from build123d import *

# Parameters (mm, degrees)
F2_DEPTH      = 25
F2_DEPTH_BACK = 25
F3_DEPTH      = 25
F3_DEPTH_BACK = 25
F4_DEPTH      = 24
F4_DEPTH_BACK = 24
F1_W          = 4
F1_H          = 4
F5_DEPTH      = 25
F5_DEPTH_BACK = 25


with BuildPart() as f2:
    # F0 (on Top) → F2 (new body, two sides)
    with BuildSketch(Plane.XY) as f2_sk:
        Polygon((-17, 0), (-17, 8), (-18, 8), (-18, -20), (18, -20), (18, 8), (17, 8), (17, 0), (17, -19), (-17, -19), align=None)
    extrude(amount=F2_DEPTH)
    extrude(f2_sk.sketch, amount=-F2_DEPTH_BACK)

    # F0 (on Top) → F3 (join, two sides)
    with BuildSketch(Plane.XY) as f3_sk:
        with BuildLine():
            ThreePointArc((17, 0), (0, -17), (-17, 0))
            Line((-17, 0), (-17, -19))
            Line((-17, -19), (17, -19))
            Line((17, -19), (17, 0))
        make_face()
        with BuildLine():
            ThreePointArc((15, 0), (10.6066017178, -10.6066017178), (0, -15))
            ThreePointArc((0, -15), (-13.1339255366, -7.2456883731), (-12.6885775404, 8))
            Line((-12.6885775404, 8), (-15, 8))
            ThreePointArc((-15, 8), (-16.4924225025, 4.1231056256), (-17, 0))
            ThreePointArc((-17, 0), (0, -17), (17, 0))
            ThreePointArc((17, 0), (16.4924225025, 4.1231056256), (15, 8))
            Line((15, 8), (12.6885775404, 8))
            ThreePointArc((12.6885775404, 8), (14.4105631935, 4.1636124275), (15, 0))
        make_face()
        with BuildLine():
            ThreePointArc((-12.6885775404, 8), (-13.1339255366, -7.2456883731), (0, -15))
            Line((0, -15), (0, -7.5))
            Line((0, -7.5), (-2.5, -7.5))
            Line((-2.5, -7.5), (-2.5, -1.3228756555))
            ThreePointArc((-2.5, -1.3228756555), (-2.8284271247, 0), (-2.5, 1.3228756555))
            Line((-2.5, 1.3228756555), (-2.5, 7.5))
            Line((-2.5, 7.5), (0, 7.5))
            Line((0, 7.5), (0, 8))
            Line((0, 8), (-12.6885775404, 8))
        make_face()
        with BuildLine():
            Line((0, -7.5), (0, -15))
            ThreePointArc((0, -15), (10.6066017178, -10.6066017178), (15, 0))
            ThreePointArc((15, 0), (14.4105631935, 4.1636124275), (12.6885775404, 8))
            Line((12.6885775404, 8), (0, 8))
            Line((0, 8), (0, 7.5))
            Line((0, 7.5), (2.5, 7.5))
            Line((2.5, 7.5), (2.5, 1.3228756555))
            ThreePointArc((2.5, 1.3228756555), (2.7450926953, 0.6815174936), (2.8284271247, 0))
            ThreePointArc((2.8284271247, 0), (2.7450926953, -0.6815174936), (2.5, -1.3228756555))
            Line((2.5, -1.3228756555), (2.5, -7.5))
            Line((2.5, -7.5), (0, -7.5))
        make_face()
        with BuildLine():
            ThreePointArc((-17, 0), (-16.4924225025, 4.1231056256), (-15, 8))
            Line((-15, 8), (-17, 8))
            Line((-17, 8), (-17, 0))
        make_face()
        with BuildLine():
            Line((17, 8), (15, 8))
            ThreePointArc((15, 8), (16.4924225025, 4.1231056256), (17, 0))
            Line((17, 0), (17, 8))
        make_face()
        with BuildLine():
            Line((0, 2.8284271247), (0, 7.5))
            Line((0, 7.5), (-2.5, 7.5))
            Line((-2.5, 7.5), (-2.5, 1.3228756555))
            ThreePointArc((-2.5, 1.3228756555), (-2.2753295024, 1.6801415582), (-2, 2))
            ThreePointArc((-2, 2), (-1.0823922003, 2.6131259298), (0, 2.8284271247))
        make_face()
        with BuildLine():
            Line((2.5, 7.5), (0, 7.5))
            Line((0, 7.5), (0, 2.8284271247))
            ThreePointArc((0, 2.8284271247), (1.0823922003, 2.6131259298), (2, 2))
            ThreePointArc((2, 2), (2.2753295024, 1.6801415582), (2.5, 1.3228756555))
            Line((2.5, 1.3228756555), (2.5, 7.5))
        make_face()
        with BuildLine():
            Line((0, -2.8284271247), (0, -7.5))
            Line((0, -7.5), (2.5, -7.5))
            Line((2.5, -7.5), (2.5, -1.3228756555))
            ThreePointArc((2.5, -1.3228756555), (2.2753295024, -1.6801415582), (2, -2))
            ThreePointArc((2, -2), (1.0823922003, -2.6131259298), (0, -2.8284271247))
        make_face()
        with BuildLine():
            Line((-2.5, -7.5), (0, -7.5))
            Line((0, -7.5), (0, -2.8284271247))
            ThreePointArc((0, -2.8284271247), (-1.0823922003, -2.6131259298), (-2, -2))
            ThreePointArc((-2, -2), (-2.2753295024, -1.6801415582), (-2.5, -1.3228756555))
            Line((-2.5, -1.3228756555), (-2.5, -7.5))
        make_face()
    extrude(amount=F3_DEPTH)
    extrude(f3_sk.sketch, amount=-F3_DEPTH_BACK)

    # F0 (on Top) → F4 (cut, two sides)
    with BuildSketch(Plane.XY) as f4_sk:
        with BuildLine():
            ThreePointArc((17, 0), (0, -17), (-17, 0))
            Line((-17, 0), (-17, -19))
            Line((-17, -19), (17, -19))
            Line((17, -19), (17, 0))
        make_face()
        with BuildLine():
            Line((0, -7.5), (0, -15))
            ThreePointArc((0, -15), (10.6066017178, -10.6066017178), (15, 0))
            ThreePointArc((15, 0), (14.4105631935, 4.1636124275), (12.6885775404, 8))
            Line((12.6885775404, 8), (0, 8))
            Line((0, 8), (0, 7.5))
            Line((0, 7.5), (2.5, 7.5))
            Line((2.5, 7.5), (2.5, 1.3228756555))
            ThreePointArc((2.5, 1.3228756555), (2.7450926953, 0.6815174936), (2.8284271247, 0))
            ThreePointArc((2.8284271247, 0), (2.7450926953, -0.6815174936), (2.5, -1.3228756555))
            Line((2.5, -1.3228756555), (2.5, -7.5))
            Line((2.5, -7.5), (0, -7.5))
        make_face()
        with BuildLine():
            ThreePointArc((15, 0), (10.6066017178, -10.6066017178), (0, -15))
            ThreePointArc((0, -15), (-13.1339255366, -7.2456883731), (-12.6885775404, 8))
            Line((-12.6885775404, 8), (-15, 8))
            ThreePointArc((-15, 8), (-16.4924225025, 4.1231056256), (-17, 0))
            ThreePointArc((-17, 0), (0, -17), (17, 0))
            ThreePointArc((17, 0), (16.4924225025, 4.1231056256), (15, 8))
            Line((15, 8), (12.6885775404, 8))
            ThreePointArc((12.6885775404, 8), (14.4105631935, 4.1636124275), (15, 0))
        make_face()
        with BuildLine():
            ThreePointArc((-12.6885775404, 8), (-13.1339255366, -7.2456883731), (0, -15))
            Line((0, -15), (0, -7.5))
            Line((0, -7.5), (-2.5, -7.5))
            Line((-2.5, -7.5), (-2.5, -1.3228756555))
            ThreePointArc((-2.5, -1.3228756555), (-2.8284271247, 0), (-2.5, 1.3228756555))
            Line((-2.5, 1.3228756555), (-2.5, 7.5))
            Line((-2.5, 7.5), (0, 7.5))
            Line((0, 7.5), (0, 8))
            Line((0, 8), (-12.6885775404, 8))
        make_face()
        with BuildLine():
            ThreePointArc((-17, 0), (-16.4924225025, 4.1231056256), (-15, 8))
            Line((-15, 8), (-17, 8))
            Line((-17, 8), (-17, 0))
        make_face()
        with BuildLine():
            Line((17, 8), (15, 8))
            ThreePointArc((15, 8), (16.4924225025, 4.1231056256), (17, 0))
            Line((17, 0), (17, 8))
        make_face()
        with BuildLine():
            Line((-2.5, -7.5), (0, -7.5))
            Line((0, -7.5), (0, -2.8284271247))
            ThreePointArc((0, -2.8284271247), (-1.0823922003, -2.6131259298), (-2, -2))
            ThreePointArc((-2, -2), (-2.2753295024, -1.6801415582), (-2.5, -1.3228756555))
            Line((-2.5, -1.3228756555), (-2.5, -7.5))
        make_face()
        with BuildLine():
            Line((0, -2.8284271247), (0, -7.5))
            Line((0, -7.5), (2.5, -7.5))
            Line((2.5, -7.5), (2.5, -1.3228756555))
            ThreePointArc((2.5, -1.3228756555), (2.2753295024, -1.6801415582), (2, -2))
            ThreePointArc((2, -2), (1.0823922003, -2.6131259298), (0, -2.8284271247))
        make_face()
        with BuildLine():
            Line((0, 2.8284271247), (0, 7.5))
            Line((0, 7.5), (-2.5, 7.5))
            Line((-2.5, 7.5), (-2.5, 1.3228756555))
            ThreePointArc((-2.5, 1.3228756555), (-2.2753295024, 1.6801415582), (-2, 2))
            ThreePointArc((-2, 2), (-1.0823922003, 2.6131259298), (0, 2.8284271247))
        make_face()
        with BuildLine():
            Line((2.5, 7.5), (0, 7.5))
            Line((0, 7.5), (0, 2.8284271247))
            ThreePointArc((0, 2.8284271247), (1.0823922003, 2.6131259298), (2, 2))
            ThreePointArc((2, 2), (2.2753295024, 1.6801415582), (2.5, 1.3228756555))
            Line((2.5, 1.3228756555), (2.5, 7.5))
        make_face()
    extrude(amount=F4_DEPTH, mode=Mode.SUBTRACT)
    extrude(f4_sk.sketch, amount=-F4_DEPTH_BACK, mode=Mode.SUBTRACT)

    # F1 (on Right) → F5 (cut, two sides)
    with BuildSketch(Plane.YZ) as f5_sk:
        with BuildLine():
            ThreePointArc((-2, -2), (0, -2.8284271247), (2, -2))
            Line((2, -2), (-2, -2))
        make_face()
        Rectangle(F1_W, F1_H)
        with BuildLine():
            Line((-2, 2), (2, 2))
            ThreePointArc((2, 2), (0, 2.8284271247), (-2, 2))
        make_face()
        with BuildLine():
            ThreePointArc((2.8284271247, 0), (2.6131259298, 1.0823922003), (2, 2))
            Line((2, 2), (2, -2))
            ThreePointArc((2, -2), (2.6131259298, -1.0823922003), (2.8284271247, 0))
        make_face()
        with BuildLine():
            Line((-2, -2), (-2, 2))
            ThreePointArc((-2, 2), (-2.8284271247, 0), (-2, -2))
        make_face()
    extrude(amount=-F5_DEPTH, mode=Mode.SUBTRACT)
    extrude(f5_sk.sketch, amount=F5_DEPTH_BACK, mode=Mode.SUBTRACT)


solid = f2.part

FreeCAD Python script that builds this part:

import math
import FreeCAD as App
import Part
import Sketcher

V = App.Vector


def add_polygon(sketch, points):
    """Adds a closed chain of lines whose ends are joined by coincident constraints."""
    first, n = sketch.GeometryCount, len(points)
    for a, b in zip(points, points[1:] + points[:1]):
        sketch.addGeometry(Part.LineSegment(App.Vector(*a, 0), App.Vector(*b, 0)), False)
    for i in range(n):
        sketch.addConstraint(Sketcher.Constraint("Coincident", first + i, 2, first + (i + 1) % n, 1))

doc = App.newDocument("Part")
body = doc.addObject("PartDesign::Body", "Body")

sketch1 = body.newObject("Sketcher::SketchObject", "Sketch")
sketch1.AttachmentSupport = (doc.getObject("XY_Plane"), [""])
sketch1.MapMode = "FlatFace"
add_polygon(sketch1, [(-17, 8), (-18, 8), (-18, -20), (18, -20), (18, 8), (17, 8), (17, -19), (-17, -19)])
sketch1.addConstraint(Sketcher.Constraint("Horizontal", 0))
sketch1.addConstraint(Sketcher.Constraint("Vertical", 1))
sketch1.addConstraint(Sketcher.Constraint("Horizontal", 2))
sketch1.addConstraint(Sketcher.Constraint("Vertical", 3))
sketch1.addConstraint(Sketcher.Constraint("Horizontal", 4))
sketch1.addConstraint(Sketcher.Constraint("Vertical", 5))
sketch1.addConstraint(Sketcher.Constraint("Horizontal", 6))
sketch1.addConstraint(Sketcher.Constraint("Vertical", 7))
sketch1.addConstraint(Sketcher.Constraint("Symmetric", 0, 2, 3, 2, -2))
sketch1.addConstraint(Sketcher.Constraint("Equal", 0, 4))
sketch1.addConstraint(Sketcher.Constraint("DistanceX", 0, 2, 0, 1, 1.0))
sketch1.addConstraint(Sketcher.Constraint("DistanceX", 2, 1, 2, 2, 36.0))
sketch1.addConstraint(Sketcher.Constraint("DistanceY", 1, 2, 1, 1, 28.0))
sketch1.addConstraint(Sketcher.Constraint("DistanceY", 5, 2, 5, 1, 27.0))
sketch1.addConstraint(Sketcher.Constraint("DistanceY", -1, 1, 0, 2, 8.0))
pad1 = body.newObject("PartDesign::Pad", "Pad")
pad1.Profile = sketch1
pad1.Type = "TwoLengths"
pad1.Length = 25
pad1.Length2 = 25

sketch2 = body.newObject("Sketcher::SketchObject", "Sketch001")
sketch2.AttachmentSupport = (doc.getObject("XY_Plane"), [""])
sketch2.MapMode = "FlatFace"
add_polygon(sketch2, [(-17, -19), (17, -19), (17, 8), (-17, 8)])
sketch2.addGeometry(Part.ArcOfCircle(Part.Circle(V(0, 0, 0), V(0, 0, 1), 2.8), math.radians(152), math.radians(208)), False)
sketch2.addGeometry(Part.ArcOfCircle(Part.Circle(V(0, 0, 0), V(0, 0, 1), 2.8), math.radians(135), math.radians(152.11)), False)
sketch2.addGeometry(Part.ArcOfCircle(Part.Circle(V(0, 0, 0), V(0, 0, 1), 2.8), math.radians(90), math.radians(135)), False)
sketch2.addGeometry(Part.ArcOfCircle(Part.Circle(V(0, 0, 0), V(0, 0, 1), 2.8), math.radians(45), math.radians(90)), False)
sketch2.addGeometry(Part.ArcOfCircle(Part.Circle(V(0, 0, 0), V(0, 0, 1), 2.8), math.radians(27.89), math.radians(45)), False)
sketch2.addGeometry(Part.ArcOfCircle(Part.Circle(V(0, 0, 0), V(0, 0, 1), 2.8), math.radians(0), math.radians(28)), False)
sketch2.addGeometry(Part.ArcOfCircle(Part.Circle(V(0, 0, 0), V(0, 0, 1), 2.8), math.radians(-28), math.radians(0)), False)
sketch2.addGeometry(Part.ArcOfCircle(Part.Circle(V(0, 0, 0), V(0, 0, 1), 2.8), math.radians(-45), math.radians(-27.89)), False)
sketch2.addGeometry(Part.ArcOfCircle(Part.Circle(V(0, 0, 0), V(0, 0, 1), 2.8), math.radians(-90), math.radians(-45)), False)
sketch2.addGeometry(Part.ArcOfCircle(Part.Circle(V(0, 0, 0), V(0, 0, 1), 2.8), math.radians(-135), math.radians(-90)), False)
sketch2.addGeometry(Part.ArcOfCircle(Part.Circle(V(0, 0, 0), V(0, 0, 1), 2.8), math.radians(-152.11), math.radians(-135)), False)
sketch2.addConstraint(Sketcher.Constraint("Tangent", 4, 1, 5, 2))
sketch2.addConstraint(Sketcher.Constraint("Tangent", 5, 1, 6, 2))
sketch2.addConstraint(Sketcher.Constraint("Tangent", 6, 1, 7, 2))
sketch2.addConstraint(Sketcher.Constraint("Tangent", 7, 1, 8, 2))
sketch2.addConstraint(Sketcher.Constraint("Tangent", 8, 1, 9, 2))
sketch2.addConstraint(Sketcher.Constraint("Tangent", 9, 1, 10, 2))
sketch2.addConstraint(Sketcher.Constraint("Tangent", 10, 1, 11, 2))
sketch2.addConstraint(Sketcher.Constraint("Tangent", 11, 1, 12, 2))
sketch2.addConstraint(Sketcher.Constraint("Tangent", 12, 1, 13, 2))
sketch2.addConstraint(Sketcher.Constraint("Tangent", 13, 1, 14, 2))
sketch2.addConstraint(Sketcher.Constraint("Tangent", 14, 1, 4, 2))
sketch2.addConstraint(Sketcher.Constraint("Horizontal", 0))
sketch2.addConstraint(Sketcher.Constraint("Vertical", 1))
sketch2.addConstraint(Sketcher.Constraint("Horizontal", 2))
sketch2.addConstraint(Sketcher.Constraint("Vertical", 3))
sketch2.addConstraint(Sketcher.Constraint("Coincident", 4, 3, -1, 1))
sketch2.addConstraint(Sketcher.Constraint("Coincident", 6, 3, -1, 1))
sketch2.addConstraint(Sketcher.Constraint("Coincident", 8, 3, -1, 1))
sketch2.addConstraint(Sketcher.Constraint("Coincident", 10, 3, -1, 1))
sketch2.addConstraint(Sketcher.Constraint("Coincident", 12, 3, -1, 1))
sketch2.addConstraint(Sketcher.Constraint("PointOnObject", 6, 1, -2))
sketch2.addConstraint(Sketcher.Constraint("PointOnObject", 9, 1, -1))
sketch2.addConstraint(Sketcher.Constraint("PointOnObject", 12, 1, -2))
sketch2.addConstraint(Sketcher.Constraint("Horizontal", 5, 1, 7, 1))
sketch2.addConstraint(Sketcher.Constraint("Horizontal", 4, 1, 8, 1))
sketch2.addConstraint(Sketcher.Constraint("Horizontal", 11, 1, 13, 1))
sketch2.addConstraint(Sketcher.Constraint("Horizontal", 10, 1, 14, 1))
sketch2.addConstraint(Sketcher.Constraint("Vertical", 8, 1, 10, 1))
sketch2.addConstraint(Sketcher.Constraint("Vertical", 7, 1, 11, 1))
sketch2.addConstraint(Sketcher.Constraint("DistanceX", 0, 1, 0, 2, 34.0))
sketch2.addConstraint(Sketcher.Constraint("DistanceY", 1, 1, 1, 2, 27.0))
sketch2.addConstraint(Sketcher.Constraint("DistanceX", -1, 1, 0, 2, 17.0))
sketch2.addConstraint(Sketcher.Constraint("DistanceY", 0, 2, -1, 1, 19.0))
sketch2.addConstraint(Sketcher.Constraint("DistanceX", 5, 1, -1, 1, 2.0))
sketch2.addConstraint(Sketcher.Constraint("DistanceY", -1, 1, 5, 1, 2.0))
sketch2.addConstraint(Sketcher.Constraint("DistanceX", 4, 1, -1, 1, 2.5))
pad2 = body.newObject("PartDesign::Pad", "Pad001")
pad2.Profile = sketch2
pad2.Type = "TwoLengths"
pad2.Length = 25
pad2.Length2 = 25

sketch3 = body.newObject("Sketcher::SketchObject", "Sketch002")
sketch3.AttachmentSupport = (doc.getObject("XY_Plane"), [""])
sketch3.MapMode = "FlatFace"
add_polygon(sketch3, [(-17, -19), (17, -19), (17, 8), (-17, 8)])
sketch3.addGeometry(Part.ArcOfCircle(Part.Circle(V(0, 0, 0), V(0, 0, 1), 2.8), math.radians(0), math.radians(28)), False)
sketch3.addGeometry(Part.ArcOfCircle(Part.Circle(V(0, 0, 0), V(0, 0, 1), 2.8), math.radians(-28), math.radians(0)), False)
sketch3.addGeometry(Part.ArcOfCircle(Part.Circle(V(0, 0, 0), V(0, 0, 1), 2.8), math.radians(-45), math.radians(-27.89)), False)
sketch3.addGeometry(Part.ArcOfCircle(Part.Circle(V(0, 0, 0), V(0, 0, 1), 2.8), math.radians(-90), math.radians(-45)), False)
sketch3.addGeometry(Part.ArcOfCircle(Part.Circle(V(0, 0, 0), V(0, 0, 1), 2.8), math.radians(-135), math.radians(-90)), False)
sketch3.addGeometry(Part.ArcOfCircle(Part.Circle(V(0, 0, 0), V(0, 0, 1), 2.8), math.radians(-152.11), math.radians(-135)), False)
sketch3.addGeometry(Part.ArcOfCircle(Part.Circle(V(0, 0, 0), V(0, 0, 1), 2.8), math.radians(152), math.radians(208)), False)
sketch3.addGeometry(Part.ArcOfCircle(Part.Circle(V(0, 0, 0), V(0, 0, 1), 2.8), math.radians(135), math.radians(152.11)), False)
sketch3.addGeometry(Part.ArcOfCircle(Part.Circle(V(0, 0, 0), V(0, 0, 1), 2.8), math.radians(90), math.radians(135)), False)
sketch3.addGeometry(Part.ArcOfCircle(Part.Circle(V(0, 0, 0), V(0, 0, 1), 2.8), math.radians(45), math.radians(90)), False)
sketch3.addGeometry(Part.ArcOfCircle(Part.Circle(V(0, 0, 0), V(0, 0, 1), 2.8), math.radians(27.89), math.radians(45)), False)
sketch3.addConstraint(Sketcher.Constraint("Tangent", 4, 1, 5, 2))
sketch3.addConstraint(Sketcher.Constraint("Tangent", 5, 1, 6, 2))
sketch3.addConstraint(Sketcher.Constraint("Tangent", 6, 1, 7, 2))
sketch3.addConstraint(Sketcher.Constraint("Tangent", 7, 1, 8, 2))
sketch3.addConstraint(Sketcher.Constraint("Tangent", 8, 1, 9, 2))
sketch3.addConstraint(Sketcher.Constraint("Tangent", 9, 1, 10, 2))
sketch3.addConstraint(Sketcher.Constraint("Tangent", 10, 1, 11, 2))
sketch3.addConstraint(Sketcher.Constraint("Tangent", 11, 1, 12, 2))
sketch3.addConstraint(Sketcher.Constraint("Tangent", 12, 1, 13, 2))
sketch3.addConstraint(Sketcher.Constraint("Tangent", 13, 1, 14, 2))
sketch3.addConstraint(Sketcher.Constraint("Tangent", 14, 1, 4, 2))
sketch3.addConstraint(Sketcher.Constraint("Horizontal", 0))
sketch3.addConstraint(Sketcher.Constraint("Vertical", 1))
sketch3.addConstraint(Sketcher.Constraint("Horizontal", 2))
sketch3.addConstraint(Sketcher.Constraint("Vertical", 3))
sketch3.addConstraint(Sketcher.Constraint("Coincident", 4, 3, -1, 1))
sketch3.addConstraint(Sketcher.Constraint("Coincident", 6, 3, -1, 1))
sketch3.addConstraint(Sketcher.Constraint("Coincident", 8, 3, -1, 1))
sketch3.addConstraint(Sketcher.Constraint("Coincident", 10, 3, -1, 1))
sketch3.addConstraint(Sketcher.Constraint("Coincident", 12, 3, -1, 1))
sketch3.addConstraint(Sketcher.Constraint("PointOnObject", 4, 1, -1))
sketch3.addConstraint(Sketcher.Constraint("PointOnObject", 7, 1, -2))
sketch3.addConstraint(Sketcher.Constraint("PointOnObject", 12, 1, -2))
sketch3.addConstraint(Sketcher.Constraint("Horizontal", 6, 1, 8, 1))
sketch3.addConstraint(Sketcher.Constraint("Horizontal", 5, 1, 9, 1))
sketch3.addConstraint(Sketcher.Constraint("Horizontal", 11, 1, 13, 1))
sketch3.addConstraint(Sketcher.Constraint("Horizontal", 10, 1, 14, 1))
sketch3.addConstraint(Sketcher.Constraint("Vertical", 9, 1, 10, 1))
sketch3.addConstraint(Sketcher.Constraint("Vertical", 8, 1, 11, 1))
sketch3.addConstraint(Sketcher.Constraint("DistanceX", 0, 1, 0, 2, 34.0))
sketch3.addConstraint(Sketcher.Constraint("DistanceY", 1, 1, 1, 2, 27.0))
sketch3.addConstraint(Sketcher.Constraint("DistanceX", -1, 1, 0, 2, 17.0))
sketch3.addConstraint(Sketcher.Constraint("DistanceY", 0, 2, -1, 1, 19.0))
sketch3.addConstraint(Sketcher.Constraint("DistanceX", -1, 1, 6, 1, 2.0))
sketch3.addConstraint(Sketcher.Constraint("DistanceY", 6, 1, -1, 1, 2.0))
sketch3.addConstraint(Sketcher.Constraint("DistanceX", -1, 1, 5, 1, 2.5))
pocket1 = body.newObject("PartDesign::Pocket", "Pocket")
pocket1.Profile = sketch3
pocket1.Type = "TwoLengths"
pocket1.Length = 24
pocket1.Length2 = 24
pocket1.Reversed = True

sketch4 = body.newObject("Sketcher::SketchObject", "Sketch003")
sketch4.AttachmentSupport = (doc.getObject("YZ_Plane"), [""])
sketch4.MapMode = "FlatFace"
sketch4.addGeometry(Part.ArcOfCircle(Part.Circle(V(0, 0, 0), V(0, 0, 1), 2.8), math.radians(-135), math.radians(-45)), False)
sketch4.addGeometry(Part.ArcOfCircle(Part.Circle(V(0, 0, 0), V(0, 0, 1), 2.8), math.radians(-45), math.radians(0)), False)
sketch4.addGeometry(Part.ArcOfCircle(Part.Circle(V(0, 0, 0), V(0, 0, 1), 2.8), math.radians(0), math.radians(45)), False)
sketch4.addGeometry(Part.ArcOfCircle(Part.Circle(V(0, 0, 0), V(0, 0, 1), 2.8), math.radians(45), math.radians(135)), False)
sketch4.addGeometry(Part.ArcOfCircle(Part.Circle(V(0, 0, 0), V(0, 0, 1), 2.8), math.radians(135), math.radians(225)), False)
sketch4.addConstraint(Sketcher.Constraint("Tangent", 0, 2, 1, 1))
sketch4.addConstraint(Sketcher.Constraint("Tangent", 1, 2, 2, 1))
sketch4.addConstraint(Sketcher.Constraint("Tangent", 2, 2, 3, 1))
sketch4.addConstraint(Sketcher.Constraint("Tangent", 3, 2, 4, 1))
sketch4.addConstraint(Sketcher.Constraint("Tangent", 4, 2, 0, 1))
sketch4.addConstraint(Sketcher.Constraint("Coincident", 0, 3, -1, 1))
sketch4.addConstraint(Sketcher.Constraint("Coincident", 2, 3, -1, 1))
sketch4.addConstraint(Sketcher.Constraint("PointOnObject", 1, 2, -1))
sketch4.addConstraint(Sketcher.Constraint("Horizontal", 2, 2, 3, 2))
sketch4.addConstraint(Sketcher.Constraint("Horizontal", 0, 2, 4, 2))
sketch4.addConstraint(Sketcher.Constraint("Vertical", 0, 2, 2, 2))
sketch4.addConstraint(Sketcher.Constraint("DistanceX", -1, 1, 0, 2, 2.0))
sketch4.addConstraint(Sketcher.Constraint("DistanceY", 0, 2, -1, 1, 2.0))
pocket2 = body.newObject("PartDesign::Pocket", "Pocket001")
pocket2.Profile = sketch4
pocket2.Type = "ThroughAll"
pocket2.Midplane = True

doc.recompute()
